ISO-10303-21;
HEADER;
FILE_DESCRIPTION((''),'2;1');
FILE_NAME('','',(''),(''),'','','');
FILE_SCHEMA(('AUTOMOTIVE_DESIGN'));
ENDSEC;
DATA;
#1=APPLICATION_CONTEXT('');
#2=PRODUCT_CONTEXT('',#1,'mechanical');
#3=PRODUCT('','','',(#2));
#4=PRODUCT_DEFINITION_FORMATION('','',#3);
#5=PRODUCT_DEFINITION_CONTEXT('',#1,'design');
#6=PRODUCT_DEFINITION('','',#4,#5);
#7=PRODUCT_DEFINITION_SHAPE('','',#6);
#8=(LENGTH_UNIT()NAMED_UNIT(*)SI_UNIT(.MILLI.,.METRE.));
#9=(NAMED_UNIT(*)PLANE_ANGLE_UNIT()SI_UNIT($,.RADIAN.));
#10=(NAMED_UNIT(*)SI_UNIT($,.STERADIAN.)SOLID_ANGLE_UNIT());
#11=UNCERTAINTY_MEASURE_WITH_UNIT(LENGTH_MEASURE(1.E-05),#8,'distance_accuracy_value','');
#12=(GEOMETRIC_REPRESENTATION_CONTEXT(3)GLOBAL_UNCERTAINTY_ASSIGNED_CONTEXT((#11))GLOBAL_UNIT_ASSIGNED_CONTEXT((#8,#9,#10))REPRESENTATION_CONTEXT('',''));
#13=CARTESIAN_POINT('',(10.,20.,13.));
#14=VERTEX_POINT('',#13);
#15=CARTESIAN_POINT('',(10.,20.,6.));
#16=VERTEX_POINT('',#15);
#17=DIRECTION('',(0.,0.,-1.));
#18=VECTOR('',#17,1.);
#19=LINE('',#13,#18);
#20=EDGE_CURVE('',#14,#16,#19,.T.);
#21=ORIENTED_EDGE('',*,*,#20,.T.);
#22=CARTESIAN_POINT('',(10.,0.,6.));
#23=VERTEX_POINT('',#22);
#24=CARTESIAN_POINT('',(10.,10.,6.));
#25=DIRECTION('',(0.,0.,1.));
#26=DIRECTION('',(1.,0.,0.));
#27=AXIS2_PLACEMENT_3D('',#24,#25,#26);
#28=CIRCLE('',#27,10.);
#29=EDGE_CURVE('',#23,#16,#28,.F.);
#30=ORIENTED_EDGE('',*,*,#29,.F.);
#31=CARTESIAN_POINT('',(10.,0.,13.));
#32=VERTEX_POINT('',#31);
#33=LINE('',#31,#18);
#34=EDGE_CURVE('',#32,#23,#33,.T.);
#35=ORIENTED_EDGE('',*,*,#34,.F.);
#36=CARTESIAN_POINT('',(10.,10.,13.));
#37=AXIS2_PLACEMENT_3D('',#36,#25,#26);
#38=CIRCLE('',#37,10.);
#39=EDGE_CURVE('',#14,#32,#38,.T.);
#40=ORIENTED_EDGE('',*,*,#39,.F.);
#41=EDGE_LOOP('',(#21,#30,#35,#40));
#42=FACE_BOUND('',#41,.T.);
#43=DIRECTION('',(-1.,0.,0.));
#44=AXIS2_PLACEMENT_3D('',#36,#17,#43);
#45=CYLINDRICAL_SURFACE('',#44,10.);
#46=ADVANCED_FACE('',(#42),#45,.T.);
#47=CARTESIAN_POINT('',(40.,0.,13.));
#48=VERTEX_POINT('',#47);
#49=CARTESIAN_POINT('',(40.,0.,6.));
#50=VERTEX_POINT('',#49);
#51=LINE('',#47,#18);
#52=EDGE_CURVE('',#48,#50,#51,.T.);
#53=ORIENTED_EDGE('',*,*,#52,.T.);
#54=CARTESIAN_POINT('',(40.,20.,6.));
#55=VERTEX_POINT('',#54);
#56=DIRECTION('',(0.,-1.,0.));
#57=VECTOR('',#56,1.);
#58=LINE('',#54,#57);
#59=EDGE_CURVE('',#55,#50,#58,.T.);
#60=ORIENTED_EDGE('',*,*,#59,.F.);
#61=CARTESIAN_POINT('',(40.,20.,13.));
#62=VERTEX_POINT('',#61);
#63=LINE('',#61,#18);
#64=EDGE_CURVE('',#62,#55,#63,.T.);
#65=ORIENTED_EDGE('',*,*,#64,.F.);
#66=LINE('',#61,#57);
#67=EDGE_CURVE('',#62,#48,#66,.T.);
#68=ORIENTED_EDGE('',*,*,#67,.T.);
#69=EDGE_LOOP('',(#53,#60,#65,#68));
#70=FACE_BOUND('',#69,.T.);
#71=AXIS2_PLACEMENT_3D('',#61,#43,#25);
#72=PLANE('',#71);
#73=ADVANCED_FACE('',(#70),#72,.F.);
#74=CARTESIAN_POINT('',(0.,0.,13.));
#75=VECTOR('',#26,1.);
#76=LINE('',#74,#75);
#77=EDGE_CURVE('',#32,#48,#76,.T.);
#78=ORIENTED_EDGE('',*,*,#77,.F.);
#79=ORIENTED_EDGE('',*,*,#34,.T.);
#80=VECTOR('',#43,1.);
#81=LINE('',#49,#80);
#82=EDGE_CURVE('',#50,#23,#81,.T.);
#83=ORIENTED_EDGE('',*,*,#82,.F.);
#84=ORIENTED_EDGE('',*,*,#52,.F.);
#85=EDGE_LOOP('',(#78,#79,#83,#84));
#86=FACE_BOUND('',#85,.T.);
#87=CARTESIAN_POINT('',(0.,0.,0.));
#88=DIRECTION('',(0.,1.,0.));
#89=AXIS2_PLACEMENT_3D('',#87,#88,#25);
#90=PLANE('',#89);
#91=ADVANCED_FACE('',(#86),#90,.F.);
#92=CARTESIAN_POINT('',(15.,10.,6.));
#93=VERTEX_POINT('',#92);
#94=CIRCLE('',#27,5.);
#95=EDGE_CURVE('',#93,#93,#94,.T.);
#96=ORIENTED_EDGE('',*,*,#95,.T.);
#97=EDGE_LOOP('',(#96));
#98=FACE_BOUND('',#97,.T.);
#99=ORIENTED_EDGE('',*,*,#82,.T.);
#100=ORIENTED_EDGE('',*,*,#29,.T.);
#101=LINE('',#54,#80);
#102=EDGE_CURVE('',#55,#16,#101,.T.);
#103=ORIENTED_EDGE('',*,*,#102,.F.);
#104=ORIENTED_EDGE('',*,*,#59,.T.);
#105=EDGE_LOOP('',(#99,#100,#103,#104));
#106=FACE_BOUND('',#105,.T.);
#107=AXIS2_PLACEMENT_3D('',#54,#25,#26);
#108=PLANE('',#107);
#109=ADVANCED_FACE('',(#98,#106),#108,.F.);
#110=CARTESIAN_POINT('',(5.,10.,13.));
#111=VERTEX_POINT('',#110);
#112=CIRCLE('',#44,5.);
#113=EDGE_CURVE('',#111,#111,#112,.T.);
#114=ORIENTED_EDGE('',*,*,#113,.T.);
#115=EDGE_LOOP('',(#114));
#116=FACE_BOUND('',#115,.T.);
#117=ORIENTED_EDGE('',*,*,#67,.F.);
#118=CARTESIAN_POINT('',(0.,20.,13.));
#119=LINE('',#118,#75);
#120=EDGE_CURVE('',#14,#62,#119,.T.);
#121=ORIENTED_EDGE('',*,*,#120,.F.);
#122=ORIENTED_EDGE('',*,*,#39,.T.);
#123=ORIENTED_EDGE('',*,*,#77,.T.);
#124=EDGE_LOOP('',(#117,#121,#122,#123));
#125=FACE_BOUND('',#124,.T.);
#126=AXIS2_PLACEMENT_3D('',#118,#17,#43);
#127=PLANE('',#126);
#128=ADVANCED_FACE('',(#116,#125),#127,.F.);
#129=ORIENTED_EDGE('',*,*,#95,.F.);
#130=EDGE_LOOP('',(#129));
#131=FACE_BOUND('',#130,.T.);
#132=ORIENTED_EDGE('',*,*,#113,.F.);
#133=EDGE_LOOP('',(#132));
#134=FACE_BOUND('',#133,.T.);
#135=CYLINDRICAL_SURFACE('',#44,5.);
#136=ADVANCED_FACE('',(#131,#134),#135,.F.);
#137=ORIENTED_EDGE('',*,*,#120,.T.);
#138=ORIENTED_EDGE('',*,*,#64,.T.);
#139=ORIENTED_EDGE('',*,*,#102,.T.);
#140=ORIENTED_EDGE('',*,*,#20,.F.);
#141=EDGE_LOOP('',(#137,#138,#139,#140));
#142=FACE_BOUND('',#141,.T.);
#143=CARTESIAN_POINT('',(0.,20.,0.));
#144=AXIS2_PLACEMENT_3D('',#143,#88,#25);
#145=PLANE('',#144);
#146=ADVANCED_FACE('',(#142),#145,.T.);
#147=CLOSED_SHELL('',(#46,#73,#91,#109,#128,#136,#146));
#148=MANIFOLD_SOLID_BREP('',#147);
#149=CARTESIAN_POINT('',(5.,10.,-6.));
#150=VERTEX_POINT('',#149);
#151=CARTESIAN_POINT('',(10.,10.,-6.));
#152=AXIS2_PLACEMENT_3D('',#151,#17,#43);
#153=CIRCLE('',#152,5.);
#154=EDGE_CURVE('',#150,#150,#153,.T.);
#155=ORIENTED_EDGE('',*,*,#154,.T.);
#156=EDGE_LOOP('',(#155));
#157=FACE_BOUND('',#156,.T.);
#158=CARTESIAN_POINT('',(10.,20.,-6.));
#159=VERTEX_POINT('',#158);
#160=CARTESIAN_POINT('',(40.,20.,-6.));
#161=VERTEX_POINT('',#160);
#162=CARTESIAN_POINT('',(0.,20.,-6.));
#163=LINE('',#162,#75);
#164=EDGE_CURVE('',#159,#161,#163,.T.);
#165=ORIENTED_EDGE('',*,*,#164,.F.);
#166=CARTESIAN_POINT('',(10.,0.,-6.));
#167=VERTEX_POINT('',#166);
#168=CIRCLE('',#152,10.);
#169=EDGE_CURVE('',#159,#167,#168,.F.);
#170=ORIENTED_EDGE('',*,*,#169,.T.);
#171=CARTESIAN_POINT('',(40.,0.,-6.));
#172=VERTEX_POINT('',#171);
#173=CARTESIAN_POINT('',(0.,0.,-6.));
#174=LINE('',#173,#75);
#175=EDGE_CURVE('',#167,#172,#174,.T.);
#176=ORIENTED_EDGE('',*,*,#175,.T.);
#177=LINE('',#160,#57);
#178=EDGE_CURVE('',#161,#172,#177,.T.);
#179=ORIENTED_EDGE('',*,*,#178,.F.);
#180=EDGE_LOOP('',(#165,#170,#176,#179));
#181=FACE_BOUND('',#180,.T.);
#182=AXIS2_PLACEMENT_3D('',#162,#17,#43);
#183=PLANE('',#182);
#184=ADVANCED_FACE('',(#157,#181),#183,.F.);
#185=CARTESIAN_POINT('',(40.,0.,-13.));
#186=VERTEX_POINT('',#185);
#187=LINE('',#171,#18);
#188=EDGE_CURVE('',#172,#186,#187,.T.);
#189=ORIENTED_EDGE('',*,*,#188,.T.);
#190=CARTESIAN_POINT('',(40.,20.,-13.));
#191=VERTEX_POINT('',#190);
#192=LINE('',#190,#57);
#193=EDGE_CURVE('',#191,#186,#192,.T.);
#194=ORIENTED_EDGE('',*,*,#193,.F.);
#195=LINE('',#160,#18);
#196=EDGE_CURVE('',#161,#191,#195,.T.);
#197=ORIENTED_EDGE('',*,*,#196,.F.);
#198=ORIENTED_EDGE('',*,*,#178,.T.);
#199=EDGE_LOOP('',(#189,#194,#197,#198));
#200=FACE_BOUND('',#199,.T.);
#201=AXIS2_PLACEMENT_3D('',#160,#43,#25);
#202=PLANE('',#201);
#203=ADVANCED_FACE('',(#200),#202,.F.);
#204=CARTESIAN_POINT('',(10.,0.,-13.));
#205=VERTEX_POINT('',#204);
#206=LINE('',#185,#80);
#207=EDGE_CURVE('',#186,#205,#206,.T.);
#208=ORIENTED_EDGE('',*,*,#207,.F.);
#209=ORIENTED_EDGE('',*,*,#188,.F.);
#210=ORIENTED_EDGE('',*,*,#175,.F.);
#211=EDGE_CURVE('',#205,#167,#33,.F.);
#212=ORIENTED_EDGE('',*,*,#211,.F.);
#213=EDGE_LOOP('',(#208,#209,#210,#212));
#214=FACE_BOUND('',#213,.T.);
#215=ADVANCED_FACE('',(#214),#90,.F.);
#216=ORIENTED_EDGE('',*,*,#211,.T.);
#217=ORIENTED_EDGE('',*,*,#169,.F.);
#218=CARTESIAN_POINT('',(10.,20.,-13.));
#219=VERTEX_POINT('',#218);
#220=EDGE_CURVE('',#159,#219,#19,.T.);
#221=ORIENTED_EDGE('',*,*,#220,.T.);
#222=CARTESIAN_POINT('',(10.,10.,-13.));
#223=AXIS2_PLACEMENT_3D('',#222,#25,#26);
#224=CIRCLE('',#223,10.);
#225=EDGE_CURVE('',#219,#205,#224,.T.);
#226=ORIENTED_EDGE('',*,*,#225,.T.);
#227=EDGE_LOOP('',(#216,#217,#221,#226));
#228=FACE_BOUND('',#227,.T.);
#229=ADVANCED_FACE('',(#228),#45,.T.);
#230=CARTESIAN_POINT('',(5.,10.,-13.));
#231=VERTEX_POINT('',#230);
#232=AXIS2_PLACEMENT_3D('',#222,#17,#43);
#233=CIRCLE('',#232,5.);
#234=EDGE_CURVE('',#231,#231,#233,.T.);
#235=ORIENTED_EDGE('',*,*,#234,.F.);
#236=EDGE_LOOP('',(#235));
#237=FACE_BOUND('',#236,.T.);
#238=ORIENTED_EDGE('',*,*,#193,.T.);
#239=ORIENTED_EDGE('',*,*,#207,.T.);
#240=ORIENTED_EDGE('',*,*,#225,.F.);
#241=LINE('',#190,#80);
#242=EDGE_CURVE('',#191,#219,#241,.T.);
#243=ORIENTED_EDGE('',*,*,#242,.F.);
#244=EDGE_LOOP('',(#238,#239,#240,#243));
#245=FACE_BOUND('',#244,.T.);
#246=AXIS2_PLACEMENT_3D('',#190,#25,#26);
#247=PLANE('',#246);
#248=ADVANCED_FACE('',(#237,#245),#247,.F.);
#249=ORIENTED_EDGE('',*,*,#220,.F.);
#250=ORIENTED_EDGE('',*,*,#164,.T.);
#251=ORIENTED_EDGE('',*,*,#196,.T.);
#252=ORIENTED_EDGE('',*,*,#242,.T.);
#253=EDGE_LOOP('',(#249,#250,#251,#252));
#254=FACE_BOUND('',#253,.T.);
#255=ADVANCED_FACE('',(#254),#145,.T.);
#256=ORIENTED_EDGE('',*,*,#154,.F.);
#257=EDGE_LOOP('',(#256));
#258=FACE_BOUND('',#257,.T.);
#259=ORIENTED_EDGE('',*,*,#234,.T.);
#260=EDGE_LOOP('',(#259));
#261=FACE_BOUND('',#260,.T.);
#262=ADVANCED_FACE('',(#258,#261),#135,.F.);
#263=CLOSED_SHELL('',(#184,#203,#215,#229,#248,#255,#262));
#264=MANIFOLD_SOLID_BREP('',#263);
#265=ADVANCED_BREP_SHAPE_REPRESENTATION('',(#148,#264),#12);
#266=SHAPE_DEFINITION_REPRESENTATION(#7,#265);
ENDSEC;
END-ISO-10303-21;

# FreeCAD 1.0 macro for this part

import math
import FreeCAD as App
import Part
import Sketcher

doc = App.newDocument("Part")
body = doc.addObject("PartDesign::Body", "Body")

# Sketch on XZ plane
sketch1 = doc.addObject("Sketcher::SketchObject", "Sketch")
body.addObject(sketch1)
sketch1.AttachmentSupport = (doc.XZ_Plane, [""])
sketch1.MapMode = "FlatFace"
sketch1.addGeometry([
    Part.LineSegment(App.Vector(0, -13, 0), App.Vector(0, -6, 0)),
    Part.LineSegment(App.Vector(0, -6, 0), App.Vector(40, -6, 0)),
    Part.LineSegment(App.Vector(40, -6, 0), App.Vector(40, -13, 0)),
    Part.LineSegment(App.Vector(40, -13, 0), App.Vector(0, -13, 0)),
], False)
sketch1.addConstraint([
    Sketcher.Constraint("Coincident", 0, 2, 1, 1),
    Sketcher.Constraint("Coincident", 1, 2, 2, 1),
    Sketcher.Constraint("Coincident", 2, 2, 3, 1),
    Sketcher.Constraint("Coincident", 3, 2, 0, 1),
    Sketcher.Constraint("Vertical", 0),
    Sketcher.Constraint("Horizontal", 1),
    Sketcher.Constraint("Vertical", 2),
    Sketcher.Constraint("Horizontal", 3),
    Sketcher.Constraint("PointOnObject", 0, 2, -2),
    Sketcher.Constraint("DistanceX", 1, 1, 1, 2, 40.0),
    Sketcher.Constraint("DistanceY", 0, 1, 0, 2, 7.0),
    Sketcher.Constraint("DistanceY", 0, 2, -1, 1, 6.0),
])
pad1 = doc.addObject("PartDesign::Pad", "Pad")
body.addObject(pad1)
pad1.Profile = sketch1
pad1.Length = 20
pad1.Reversed = True
body2 = doc.addObject("PartDesign::Body", "Body001")

# Sketch on XZ plane
sketch2 = doc.addObject("Sketcher::SketchObject", "Sketch001")
body2.addObject(sketch2)
sketch2.AttachmentSupport = (doc.getObject("XZ_Plane001"), [""])
sketch2.MapMode = "FlatFace"
sketch2.addGeometry([
    Part.LineSegment(App.Vector(0, 6, 0), App.Vector(0, 13, 0)),
    Part.LineSegment(App.Vector(0, 13, 0), App.Vector(40, 13, 0)),
    Part.LineSegment(App.Vector(40, 13, 0), App.Vector(40, 6, 0)),
    Part.LineSegment(App.Vector(40, 6, 0), App.Vector(0, 6, 0)),
], False)
sketch2.addConstraint([
    Sketcher.Constraint("Coincident", 0, 2, 1, 1),
    Sketcher.Constraint("Coincident", 1, 2, 2, 1),
    Sketcher.Constraint("Coincident", 2, 2, 3, 1),
    Sketcher.Constraint("Coincident", 3, 2, 0, 1),
    Sketcher.Constraint("Vertical", 0),
    Sketcher.Constraint("Horizontal", 1),
    Sketcher.Constraint("Vertical", 2),
    Sketcher.Constraint("Horizontal", 3),
    Sketcher.Constraint("PointOnObject", 0, 2, -2),
    Sketcher.Constraint("DistanceX", 1, 1, 1, 2, 40.0),
    Sketcher.Constraint("DistanceY", 0, 1, 0, 2, 7.0),
    Sketcher.Constraint("DistanceY", -1, 1, 0, 2, 13.0),
])
pad2 = doc.addObject("PartDesign::Pad", "Pad001")
body2.addObject(pad2)
pad2.Profile = sketch2
pad2.Length = 20
pad2.Reversed = True
body3 = doc.addObject("PartDesign::Body", "Body002")

# Sketch on XY plane
sketch3 = doc.addObject("Sketcher::SketchObject", "Sketch002")
body3.addObject(sketch3)
sketch3.AttachmentSupport = (doc.getObject("XY_Plane002"), [""])
sketch3.MapMode = "FlatFace"
sketch3.AttachmentOffset = App.Placement(App.Vector(0, 0, -13), App.Rotation())
sketch3.addGeometry([
    Part.LineSegment(App.Vector(-6, 20, 0), App.Vector(10, 20, 0)),
    Part.ArcOfCircle(Part.Circle(App.Vector(10, 10, 0), App.Vector(0, 0, 1), 10), math.radians(90), math.radians(270)),
    Part.LineSegment(App.Vector(10, 0, 0), App.Vector(-6, 0, 0)),
    Part.LineSegment(App.Vector(-6, 0, 0), App.Vector(-6, 20, 0)),
], False)
sketch3.addConstraint([
    Sketcher.Constraint("Tangent", 0, 2, 1, 1),
    Sketcher.Constraint("Tangent", 1, 2, 2, 1),
    Sketcher.Constraint("Coincident", 2, 2, 3, 1),
    Sketcher.Constraint("Coincident", 3, 2, 0, 1),
    Sketcher.Constraint("Horizontal", 0),
    Sketcher.Constraint("Horizontal", 2),
    Sketcher.Constraint("Vertical", 3),
    Sketcher.Constraint("PointOnObject", 1, 2, -1),
    Sketcher.Constraint("Radius", 1, 10.0),
    Sketcher.Constraint("DistanceX", -1, 1, 1, 3, 10.0),
    Sketcher.Constraint("DistanceX", 0, 1, 0, 2, 16.269101),
])
pad3 = doc.addObject("PartDesign::Pad", "Pad002")
body3.addObject(pad3)
pad3.Profile = sketch3
pad3.Length = 26
doc.recompute()

body4 = doc.addObject("PartDesign::Body", "Body003")
body4.BaseFeature = body3
boolean = doc.addObject("PartDesign::Boolean", "Boolean")
body.addObject(boolean)
boolean.Type = "Cut"
boolean.addObjects([body4])
doc.recompute()

boolean2 = doc.addObject("PartDesign::Boolean", "Boolean001")
body2.addObject(boolean2)
boolean2.Type = "Cut"
boolean2.addObjects([body3])
body5 = doc.addObject("PartDesign::Body", "Body004")

# Sketch on XY plane
sketch4 = doc.addObject("Sketcher::SketchObject", "Sketch003")
body5.addObject(sketch4)
sketch4.AttachmentSupport = (doc.getObject("XY_Plane004"), [""])
sketch4.MapMode = "FlatFace"
sketch4.AttachmentOffset = App.Placement(App.Vector(0, 0, -13), App.Rotation())
sketch4.addGeometry(Part.Circle(App.Vector(10, 10, 0), App.Vector(0, 0, 1), 5), False)
sketch4.addConstraint([
    Sketcher.Constraint("Diameter", 0, 10.0),
    Sketcher.Constraint("DistanceX", -1, 1, 0, 3, 10.0),
    Sketcher.Constraint("DistanceY", -1, 1, 0, 3, 10.0),
])
pad4 = doc.addObject("PartDesign::Pad", "Pad003")
body5.addObject(pad4)
pad4.Profile = sketch4
pad4.Length = 26
doc.recompute()

body6 = doc.addObject("PartDesign::Body", "Body005")
body6.BaseFeature = body5
boolean3 = doc.addObject("PartDesign::Boolean", "Boolean002")
body.addObject(boolean3)
boolean3.Type = "Cut"
boolean3.addObjects([body6])
doc.recompute()

boolean4 = doc.addObject("PartDesign::Boolean", "Boolean003")
body2.addObject(boolean4)
boolean4.Type = "Cut"
boolean4.addObjects([body5])

doc.recompute()
